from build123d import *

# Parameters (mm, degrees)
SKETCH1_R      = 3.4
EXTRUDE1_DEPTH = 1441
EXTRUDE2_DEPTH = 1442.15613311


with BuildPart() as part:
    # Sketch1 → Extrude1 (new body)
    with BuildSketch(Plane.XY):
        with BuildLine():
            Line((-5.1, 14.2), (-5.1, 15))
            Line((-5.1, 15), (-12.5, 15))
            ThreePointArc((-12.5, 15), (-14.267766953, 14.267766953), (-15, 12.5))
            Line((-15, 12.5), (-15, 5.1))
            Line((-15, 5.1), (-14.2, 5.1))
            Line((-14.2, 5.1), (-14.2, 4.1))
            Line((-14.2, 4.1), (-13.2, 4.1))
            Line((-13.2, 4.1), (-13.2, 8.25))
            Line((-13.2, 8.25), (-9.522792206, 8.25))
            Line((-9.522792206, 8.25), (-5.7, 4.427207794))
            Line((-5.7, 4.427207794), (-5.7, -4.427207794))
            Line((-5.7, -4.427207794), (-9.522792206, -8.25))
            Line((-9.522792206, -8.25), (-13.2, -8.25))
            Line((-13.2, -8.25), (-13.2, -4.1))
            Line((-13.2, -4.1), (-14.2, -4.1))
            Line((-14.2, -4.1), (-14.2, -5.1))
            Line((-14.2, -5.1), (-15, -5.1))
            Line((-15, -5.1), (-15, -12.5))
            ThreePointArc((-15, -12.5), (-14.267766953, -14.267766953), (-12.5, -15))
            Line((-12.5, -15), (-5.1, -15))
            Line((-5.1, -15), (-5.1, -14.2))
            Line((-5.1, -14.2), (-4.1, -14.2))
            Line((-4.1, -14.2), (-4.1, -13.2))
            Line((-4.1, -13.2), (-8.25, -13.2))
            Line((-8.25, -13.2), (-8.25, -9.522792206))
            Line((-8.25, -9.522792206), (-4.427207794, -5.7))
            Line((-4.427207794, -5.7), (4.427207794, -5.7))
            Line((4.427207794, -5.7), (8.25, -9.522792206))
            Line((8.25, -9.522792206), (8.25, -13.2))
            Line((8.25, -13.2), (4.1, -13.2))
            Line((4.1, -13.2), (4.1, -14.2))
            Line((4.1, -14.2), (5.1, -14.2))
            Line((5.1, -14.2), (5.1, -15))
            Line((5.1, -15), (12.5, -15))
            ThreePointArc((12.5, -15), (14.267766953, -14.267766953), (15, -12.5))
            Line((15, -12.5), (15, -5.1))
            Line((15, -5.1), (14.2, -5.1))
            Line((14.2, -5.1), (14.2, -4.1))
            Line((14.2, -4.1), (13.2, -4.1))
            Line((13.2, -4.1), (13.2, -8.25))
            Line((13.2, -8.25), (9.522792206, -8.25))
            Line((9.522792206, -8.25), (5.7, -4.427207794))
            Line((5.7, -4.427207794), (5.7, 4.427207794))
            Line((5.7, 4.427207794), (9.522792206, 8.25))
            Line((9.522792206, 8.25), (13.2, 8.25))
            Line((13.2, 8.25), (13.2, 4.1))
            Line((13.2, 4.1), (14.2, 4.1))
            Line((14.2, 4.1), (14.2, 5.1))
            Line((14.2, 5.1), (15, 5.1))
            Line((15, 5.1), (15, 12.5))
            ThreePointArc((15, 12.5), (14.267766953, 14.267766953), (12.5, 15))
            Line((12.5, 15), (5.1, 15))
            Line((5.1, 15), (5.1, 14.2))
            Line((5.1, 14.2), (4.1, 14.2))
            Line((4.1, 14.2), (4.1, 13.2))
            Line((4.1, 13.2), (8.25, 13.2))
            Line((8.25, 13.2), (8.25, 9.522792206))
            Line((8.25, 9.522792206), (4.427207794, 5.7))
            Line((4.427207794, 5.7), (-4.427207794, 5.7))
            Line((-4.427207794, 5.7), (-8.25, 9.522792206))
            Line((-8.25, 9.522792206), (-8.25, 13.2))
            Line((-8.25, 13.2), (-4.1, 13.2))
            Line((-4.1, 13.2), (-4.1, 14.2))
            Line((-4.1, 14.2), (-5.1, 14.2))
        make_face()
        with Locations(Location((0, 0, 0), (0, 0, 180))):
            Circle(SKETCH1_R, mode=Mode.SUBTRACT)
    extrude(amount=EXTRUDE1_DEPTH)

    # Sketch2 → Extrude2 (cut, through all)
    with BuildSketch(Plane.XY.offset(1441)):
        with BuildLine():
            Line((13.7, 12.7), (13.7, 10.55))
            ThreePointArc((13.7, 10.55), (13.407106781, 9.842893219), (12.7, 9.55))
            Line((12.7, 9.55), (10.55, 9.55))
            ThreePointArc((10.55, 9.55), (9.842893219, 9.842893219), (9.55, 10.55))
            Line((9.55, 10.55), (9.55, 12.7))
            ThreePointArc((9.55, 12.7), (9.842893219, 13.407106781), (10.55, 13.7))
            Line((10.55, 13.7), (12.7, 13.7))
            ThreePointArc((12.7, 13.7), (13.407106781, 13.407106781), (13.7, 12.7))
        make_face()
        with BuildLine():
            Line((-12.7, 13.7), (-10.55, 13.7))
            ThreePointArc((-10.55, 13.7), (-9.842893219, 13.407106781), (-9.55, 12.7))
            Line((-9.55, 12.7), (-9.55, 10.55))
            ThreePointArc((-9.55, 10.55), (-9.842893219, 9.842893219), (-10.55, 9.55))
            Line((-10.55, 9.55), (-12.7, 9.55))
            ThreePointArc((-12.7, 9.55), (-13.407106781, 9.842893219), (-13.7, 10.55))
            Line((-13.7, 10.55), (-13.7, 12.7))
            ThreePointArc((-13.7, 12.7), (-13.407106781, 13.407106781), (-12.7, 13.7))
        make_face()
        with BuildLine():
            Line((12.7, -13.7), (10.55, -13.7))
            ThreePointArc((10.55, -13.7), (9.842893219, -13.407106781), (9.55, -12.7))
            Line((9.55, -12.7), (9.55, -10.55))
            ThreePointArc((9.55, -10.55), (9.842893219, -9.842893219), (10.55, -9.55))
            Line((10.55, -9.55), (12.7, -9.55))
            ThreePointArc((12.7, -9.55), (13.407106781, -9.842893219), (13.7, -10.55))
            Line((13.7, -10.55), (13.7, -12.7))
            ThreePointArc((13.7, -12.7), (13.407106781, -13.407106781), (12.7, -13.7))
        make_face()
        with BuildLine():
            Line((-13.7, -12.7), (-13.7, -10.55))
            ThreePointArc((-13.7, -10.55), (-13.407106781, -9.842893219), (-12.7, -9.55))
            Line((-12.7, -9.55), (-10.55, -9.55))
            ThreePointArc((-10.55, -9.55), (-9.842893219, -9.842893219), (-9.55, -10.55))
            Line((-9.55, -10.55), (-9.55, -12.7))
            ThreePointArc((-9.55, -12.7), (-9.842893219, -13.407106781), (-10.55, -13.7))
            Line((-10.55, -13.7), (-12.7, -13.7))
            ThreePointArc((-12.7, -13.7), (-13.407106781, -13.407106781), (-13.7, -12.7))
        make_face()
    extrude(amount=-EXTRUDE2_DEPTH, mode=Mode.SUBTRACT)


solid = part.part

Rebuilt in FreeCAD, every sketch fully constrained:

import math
import FreeCAD as App
import Part
import Sketcher
from FreeCAD import Vector

doc = App.newDocument("Part")
body = doc.addObject("PartDesign::Body", "Body")

# Sketch on XY plane
sketch1 = body.newObject("Sketcher::SketchObject", "Sketch")
sketch1.AttachmentSupport = (doc.getObject("XY_Plane"), [""])
sketch1.MapMode = "FlatFace"
sketch1.addGeometry(Part.LineSegment(Vector(-5.1, 14.2, 0), Vector(-5.1, 15, 0)), False)
sketch1.addGeometry(Part.LineSegment(Vector(-5.1, 15, 0), Vector(-12.5, 15, 0)), False)
sketch1.addGeometry(Part.ArcOfCircle(Part.Circle(Vector(-12.5, 12.5, 0), Vector(0, 0, 1), 2.5), math.radians(90), math.radians(180)), False)
sketch1.addGeometry(Part.LineSegment(Vector(-15, 12.5, 0), Vector(-15, 5.1, 0)), False)
sketch1.addGeometry(Part.LineSegment(Vector(-15, 5.1, 0), Vector(-14.2, 5.1, 0)), False)
sketch1.addGeometry(Part.LineSegment(Vector(-14.2, 5.1, 0), Vector(-14.2, 4.1, 0)), False)
sketch1.addGeometry(Part.LineSegment(Vector(-14.2, 4.1, 0), Vector(-13.2, 4.1, 0)), False)
sketch1.addGeometry(Part.LineSegment(Vector(-13.2, 4.1, 0), Vector(-13.2, 8.2, 0)), False)
sketch1.addGeometry(Part.LineSegment(Vector(-13.2, 8.2, 0), Vector(-9.5, 8.2, 0)), False)
sketch1.addGeometry(Part.LineSegment(Vector(-9.5, 8.2, 0), Vector(-5.7, 4.4, 0)), False)
sketch1.addGeometry(Part.LineSegment(Vector(-5.7, 4.4, 0), Vector(-5.7, -4.4, 0)), False)
sketch1.addGeometry(Part.LineSegment(Vector(-5.7, -4.4, 0), Vector(-9.5, -8.2, 0)), False)
sketch1.addGeometry(Part.LineSegment(Vector(-9.5, -8.2, 0), Vector(-13.2, -8.2, 0)), False)
sketch1.addGeometry(Part.LineSegment(Vector(-13.2, -8.2, 0), Vector(-13.2, -4.1, 0)), False)
sketch1.addGeometry(Part.LineSegment(Vector(-13.2, -4.1, 0), Vector(-14.2, -4.1, 0)), False)
sketch1.addGeometry(Part.LineSegment(Vector(-14.2, -4.1, 0), Vector(-14.2, -5.1, 0)), False)
sketch1.addGeometry(Part.LineSegment(Vector(-14.2, -5.1, 0), Vector(-15, -5.1, 0)), False)
sketch1.addGeometry(Part.LineSegment(Vector(-15, -5.1, 0), Vector(-15, -12.5, 0)), False)
sketch1.addGeometry(Part.ArcOfCircle(Part.Circle(Vector(-12.5, -12.5, 0), Vector(0, 0, 1), 2.5), math.radians(180), math.radians(270)), False)
sketch1.addGeometry(Part.LineSegment(Vector(-12.5, -15, 0), Vector(-5.1, -15, 0)), False)
sketch1.addGeometry(Part.LineSegment(Vector(-5.1, -15, 0), Vector(-5.1, -14.2, 0)), False)
sketch1.addGeometry(Part.LineSegment(Vector(-5.1, -14.2, 0), Vector(-4.1, -14.2, 0)), False)
sketch1.addGeometry(Part.LineSegment(Vector(-4.1, -14.2, 0), Vector(-4.1, -13.2, 0)), False)
sketch1.addGeometry(Part.LineSegment(Vector(-4.1, -13.2, 0), Vector(-8.2, -13.2, 0)), False)
sketch1.addGeometry(Part.LineSegment(Vector(-8.2, -13.2, 0), Vector(-8.2, -9.5, 0)), False)
sketch1.addGeometry(Part.LineSegment(Vector(-8.2, -9.5, 0), Vector(-4.4, -5.7, 0)), False)
sketch1.addGeometry(Part.LineSegment(Vector(-4.4, -5.7, 0), Vector(4.4, -5.7, 0)), False)
sketch1.addGeometry(Part.LineSegment(Vector(4.4, -5.7, 0), Vector(8.2, -9.5, 0)), False)
sketch1.addGeometry(Part.LineSegment(Vector(8.2, -9.5, 0), Vector(8.2, -13.2, 0)), False)
sketch1.addGeometry(Part.LineSegment(Vector(8.2, -13.2, 0), Vector(4.1, -13.2, 0)), False)
sketch1.addGeometry(Part.LineSegment(Vector(4.1, -13.2, 0), Vector(4.1, -14.2, 0)), False)
sketch1.addGeometry(Part.LineSegment(Vector(4.1, -14.2, 0), Vector(5.1, -14.2, 0)), False)
sketch1.addGeometry(Part.LineSegment(Vector(5.1, -14.2, 0), Vector(5.1, -15, 0)), False)
sketch1.addGeometry(Part.LineSegment(Vector(5.1, -15, 0), Vector(12.5, -15, 0)), False)
sketch1.addGeometry(Part.ArcOfCircle(Part.Circle(Vector(12.5, -12.5, 0), Vector(0, 0, 1), 2.5), math.radians(-90), math.radians(0)), False)
sketch1.addGeometry(Part.LineSegment(Vector(15, -12.5, 0), Vector(15, -5.1, 0)), False)
sketch1.addGeometry(Part.LineSegment(Vector(15, -5.1, 0), Vector(14.2, -5.1, 0)), False)
sketch1.addGeometry(Part.LineSegment(Vector(14.2, -5.1, 0), Vector(14.2, -4.1, 0)), False)
sketch1.addGeometry(Part.LineSegment(Vector(14.2, -4.1, 0), Vector(13.2, -4.1, 0)), False)
sketch1.addGeometry(Part.LineSegment(Vector(13.2, -4.1, 0), Vector(13.2, -8.2, 0)), False)
sketch1.addGeometry(Part.LineSegment(Vector(13.2, -8.2, 0), Vector(9.5, -8.2, 0)), False)
sketch1.addGeometry(Part.LineSegment(Vector(9.5, -8.2, 0), Vector(5.7, -4.4, 0)), False)
sketch1.addGeometry(Part.LineSegment(Vector(5.7, -4.4, 0), Vector(5.7, 4.4, 0)), False)
sketch1.addGeometry(Part.LineSegment(Vector(5.7, 4.4, 0), Vector(9.5, 8.2, 0)), False)
sketch1.addGeometry(Part.LineSegment(Vector(9.5, 8.2, 0), Vector(13.2, 8.2, 0)), False)
sketch1.addGeometry(Part.LineSegment(Vector(13.2, 8.2, 0), Vector(13.2, 4.1, 0)), False)
sketch1.addGeometry(Part.LineSegment(Vector(13.2, 4.1, 0), Vector(14.2, 4.1, 0)), False)
sketch1.addGeometry(Part.LineSegment(Vector(14.2, 4.1, 0), Vector(14.2, 5.1, 0)), False)
sketch1.addGeometry(Part.LineSegment(Vector(14.2, 5.1, 0), Vector(15, 5.1, 0)), False)
sketch1.addGeometry(Part.LineSegment(Vector(15, 5.1, 0), Vector(15, 12.5, 0)), False)
sketch1.addGeometry(Part.ArcOfCircle(Part.Circle(Vector(12.5, 12.5, 0), Vector(0, 0, 1), 2.5), math.radians(0), math.radians(90)), False)
sketch1.addGeometry(Part.LineSegment(Vector(12.5, 15, 0), Vector(5.1, 15, 0)), False)
sketch1.addGeometry(Part.LineSegment(Vector(5.1, 15, 0), Vector(5.1, 14.2, 0)), False)
sketch1.addGeometry(Part.LineSegment(Vector(5.1, 14.2, 0), Vector(4.1, 14.2, 0)), False)
sketch1.addGeometry(Part.LineSegment(Vector(4.1, 14.2, 0), Vector(4.1, 13.2, 0)), False)
sketch1.addGeometry(Part.LineSegment(Vector(4.1, 13.2, 0), Vector(8.2, 13.2, 0)), False)
sketch1.addGeometry(Part.LineSegment(Vector(8.2, 13.2, 0), Vector(8.2, 9.5, 0)), False)
sketch1.addGeometry(Part.LineSegment(Vector(8.2, 9.5, 0), Vector(4.4, 5.7, 0)), False)
sketch1.addGeometry(Part.LineSegment(Vector(4.4, 5.7, 0), Vector(-4.4, 5.7, 0)), False)
sketch1.addGeometry(Part.LineSegment(Vector(-4.4, 5.7, 0), Vector(-8.2, 9.5, 0)), False)
sketch1.addGeometry(Part.LineSegment(Vector(-8.2, 9.5, 0), Vector(-8.2, 13.2, 0)), False)
sketch1.addGeometry(Part.LineSegment(Vector(-8.2, 13.2, 0), Vector(-4.1, 13.2, 0)), False)
sketch1.addGeometry(Part.LineSegment(Vector(-4.1, 13.2, 0), Vector(-4.1, 14.2, 0)), False)
sketch1.addGeometry(Part.LineSegment(Vector(-4.1, 14.2, 0), Vector(-5.1, 14.2, 0)), False)
sketch1.addGeometry(Part.Circle(Vector(0, 0, 0), Vector(0, 0, 1), 3.4), False)
sketch1.addConstraint(Sketcher.Constraint("Coincident", 0, 2, 1, 1))
sketch1.addConstraint(Sketcher.Constraint("Tangent", 1, 2, 2, 1))
sketch1.addConstraint(Sketcher.Constraint("Tangent", 2, 2, 3, 1))
sketch1.addConstraint(Sketcher.Constraint("Coincident", 3, 2, 4, 1))
sketch1.addConstraint(Sketcher.Constraint("Coincident", 4, 2, 5, 1))
sketch1.addConstraint(Sketcher.Constraint("Coincident", 5, 2, 6, 1))
sketch1.addConstraint(Sketcher.Constraint("Coincident", 6, 2, 7, 1))
sketch1.addConstraint(Sketcher.Constraint("Coincident", 7, 2, 8, 1))
sketch1.addConstraint(Sketcher.Constraint("Coincident", 8, 2, 9, 1))
sketch1.addConstraint(Sketcher.Constraint("Coincident", 9, 2, 10, 1))
sketch1.addConstraint(Sketcher.Constraint("Coincident", 10, 2, 11, 1))
sketch1.addConstraint(Sketcher.Constraint("Coincident", 11, 2, 12, 1))
sketch1.addConstraint(Sketcher.Constraint("Coincident", 12, 2, 13, 1))
sketch1.addConstraint(Sketcher.Constraint("Coincident", 13, 2, 14, 1))
sketch1.addConstraint(Sketcher.Constraint("Coincident", 14, 2, 15, 1))
sketch1.addConstraint(Sketcher.Constraint("Coincident", 15, 2, 16, 1))
sketch1.addConstraint(Sketcher.Constraint("Coincident", 16, 2, 17, 1))
sketch1.addConstraint(Sketcher.Constraint("Tangent", 17, 2, 18, 1))
sketch1.addConstraint(Sketcher.Constraint("Tangent", 18, 2, 19, 1))
sketch1.addConstraint(Sketcher.Constraint("Coincident", 19, 2, 20, 1))
sketch1.addConstraint(Sketcher.Constraint("Coincident", 20, 2, 21, 1))
sketch1.addConstraint(Sketcher.Constraint("Coincident", 21, 2, 22, 1))
sketch1.addConstraint(Sketcher.Constraint("Coincident", 22, 2, 23, 1))
sketch1.addConstraint(Sketcher.Constraint("Coincident", 23, 2, 24, 1))
sketch1.addConstraint(Sketcher.Constraint("Coincident", 24, 2, 25, 1))
sketch1.addConstraint(Sketcher.Constraint("Coincident", 25, 2, 26, 1))
sketch1.addConstraint(Sketcher.Constraint("Coincident", 26, 2, 27, 1))
sketch1.addConstraint(Sketcher.Constraint("Coincident", 27, 2, 28, 1))
sketch1.addConstraint(Sketcher.Constraint("Coincident", 28, 2, 29, 1))
sketch1.addConstraint(Sketcher.Constraint("Coincident", 29, 2, 30, 1))
sketch1.addConstraint(Sketcher.Constraint("Coincident", 30, 2, 31, 1))
sketch1.addConstraint(Sketcher.Constraint("Coincident", 31, 2, 32, 1))
sketch1.addConstraint(Sketcher.Constraint("Coincident", 32, 2, 33, 1))
sketch1.addConstraint(Sketcher.Constraint("Tangent", 33, 2, 34, 1))
sketch1.addConstraint(Sketcher.Constraint("Tangent", 34, 2, 35, 1))
sketch1.addConstraint(Sketcher.Constraint("Coincident", 35, 2, 36, 1))
sketch1.addConstraint(Sketcher.Constraint("Coincident", 36, 2, 37, 1))
sketch1.addConstraint(Sketcher.Constraint("Coincident", 37, 2, 38, 1))
sketch1.addConstraint(Sketcher.Constraint("Coincident", 38, 2, 39, 1))
sketch1.addConstraint(Sketcher.Constraint("Coincident", 39, 2, 40, 1))
sketch1.addConstraint(Sketcher.Constraint("Coincident", 40, 2, 41, 1))
sketch1.addConstraint(Sketcher.Constraint("Coincident", 41, 2, 42, 1))
sketch1.addConstraint(Sketcher.Constraint("Coincident", 42, 2, 43, 1))
sketch1.addConstraint(Sketcher.Constraint("Coincident", 43, 2, 44, 1))
sketch1.addConstraint(Sketcher.Constraint("Coincident", 44, 2, 45, 1))
sketch1.addConstraint(Sketcher.Constraint("Coincident", 45, 2, 46, 1))
sketch1.addConstraint(Sketcher.Constraint("Coincident", 46, 2, 47, 1))
sketch1.addConstraint(Sketcher.Constraint("Coincident", 47, 2, 48, 1))
sketch1.addConstraint(Sketcher.Constraint("Coincident", 48, 2, 49, 1))
sketch1.addConstraint(Sketcher.Constraint("Tangent", 49, 2, 50, 1))
sketch1.addConstraint(Sketcher.Constraint("Tangent", 50, 2, 51, 1))
sketch1.addConstraint(Sketcher.Constraint("Coincident", 51, 2, 52, 1))
sketch1.addConstraint(Sketcher.Constraint("Coincident", 52, 2, 53, 1))
sketch1.addConstraint(Sketcher.Constraint("Coincident", 53, 2, 54, 1))
sketch1.addConstraint(Sketcher.Constraint("Coincident", 54, 2, 55, 1))
sketch1.addConstraint(Sketcher.Constraint("Coincident", 55, 2, 56, 1))
sketch1.addConstraint(Sketcher.Constraint("Coincident", 56, 2, 57, 1))
sketch1.addConstraint(Sketcher.Constraint("Coincident", 57, 2, 58, 1))
sketch1.addConstraint(Sketcher.Constraint("Coincident", 58, 2, 59, 1))
sketch1.addConstraint(Sketcher.Constraint("Coincident", 59, 2, 60, 1))
sketch1.addConstraint(Sketcher.Constraint("Coincident", 60, 2, 61, 1))
sketch1.addConstraint(Sketcher.Constraint("Coincident", 61, 2, 62, 1))
sketch1.addConstraint(Sketcher.Constraint("Coincident", 62, 2, 63, 1))
sketch1.addConstraint(Sketcher.Constraint("Coincident", 63, 2, 0, 1))
sketch1.addConstraint(Sketcher.Constraint("Vertical", 0))
sketch1.addConstraint(Sketcher.Constraint("Horizontal", 1))
sketch1.addConstraint(Sketcher.Constraint("Vertical", 3))
sketch1.addConstraint(Sketcher.Constraint("Horizontal", 4))
sketch1.addConstraint(Sketcher.Constraint("Vertical", 5))
sketch1.addConstraint(Sketcher.Constraint("Horizontal", 6))
sketch1.addConstraint(Sketcher.Constraint("Vertical", 7))
sketch1.addConstraint(Sketcher.Constraint("Horizontal", 8))
sketch1.addConstraint(Sketcher.Constraint("Vertical", 10))
sketch1.addConstraint(Sketcher.Constraint("Horizontal", 12))
sketch1.addConstraint(Sketcher.Constraint("Vertical", 13))
sketch1.addConstraint(Sketcher.Constraint("Horizontal", 14))
sketch1.addConstraint(Sketcher.Constraint("Vertical", 15))
sketch1.addConstraint(Sketcher.Constraint("Horizontal", 16))
sketch1.addConstraint(Sketcher.Constraint("Vertical", 17))
sketch1.addConstraint(Sketcher.Constraint("Horizontal", 19))
sketch1.addConstraint(Sketcher.Constraint("Vertical", 20))
sketch1.addConstraint(Sketcher.Constraint("Horizontal", 21))
sketch1.addConstraint(Sketcher.Constraint("Vertical", 22))
sketch1.addConstraint(Sketcher.Constraint("Horizontal", 23))
sketch1.addConstraint(Sketcher.Constraint("Vertical", 24))
sketch1.addConstraint(Sketcher.Constraint("Horizontal", 26))
sketch1.addConstraint(Sketcher.Constraint("Vertical", 28))
sketch1.addConstraint(Sketcher.Constraint("Horizontal", 29))
sketch1.addConstraint(Sketcher.Constraint("Vertical", 30))
sketch1.addConstraint(Sketcher.Constraint("Horizontal", 31))
sketch1.addConstraint(Sketcher.Constraint("Vertical", 32))
sketch1.addConstraint(Sketcher.Constraint("Horizontal", 33))
sketch1.addConstraint(Sketcher.Constraint("Vertical", 35))
sketch1.addConstraint(Sketcher.Constraint("Horizontal", 36))
sketch1.addConstraint(Sketcher.Constraint("Vertical", 37))
sketch1.addConstraint(Sketcher.Constraint("Horizontal", 38))
sketch1.addConstraint(Sketcher.Constraint("Vertical", 39))
sketch1.addConstraint(Sketcher.Constraint("Horizontal", 40))
sketch1.addConstraint(Sketcher.Constraint("Vertical", 42))
sketch1.addConstraint(Sketcher.Constraint("Horizontal", 44))
sketch1.addConstraint(Sketcher.Constraint("Vertical", 45))
sketch1.addConstraint(Sketcher.Constraint("Horizontal", 46))
sketch1.addConstraint(Sketcher.Constraint("Vertical", 47))
sketch1.addConstraint(Sketcher.Constraint("Horizontal", 48))
sketch1.addConstraint(Sketcher.Constraint("Vertical", 49))
sketch1.addConstraint(Sketcher.Constraint("Horizontal", 51))
sketch1.addConstraint(Sketcher.Constraint("Vertical", 52))
sketch1.addConstraint(Sketcher.Constraint("Horizontal", 53))
sketch1.addConstraint(Sketcher.Constraint("Vertical", 54))
sketch1.addConstraint(Sketcher.Constraint("Horizontal", 55))
sketch1.addConstraint(Sketcher.Constraint("Vertical", 56))
sketch1.addConstraint(Sketcher.Constraint("Horizontal", 58))
sketch1.addConstraint(Sketcher.Constraint("Vertical", 60))
sketch1.addConstraint(Sketcher.Constraint("Horizontal", 61))
sketch1.addConstraint(Sketcher.Constraint("Vertical", 62))
sketch1.addConstraint(Sketcher.Constraint("Horizontal", 63))
sketch1.addConstraint(Sketcher.Constraint("Coincident", 64, 3, -1, 1))
sketch1.addConstraint(Sketcher.Constraint("Equal", 2, 18))
sketch1.addConstraint(Sketcher.Constraint("Equal", 18, 34))
sketch1.addConstraint(Sketcher.Constraint("Equal", 34, 50))
sketch1.addConstraint(Sketcher.Constraint("Symmetric", 2, 3, 34, 3, -1, 1))
sketch1.addConstraint(Sketcher.Constraint("Symmetric", 18, 3, 50, 3, -1, 1))
sketch1.addConstraint(Sketcher.Constraint("Symmetric", 4, 2, 36, 2, -1, 1))
sketch1.addConstraint(Sketcher.Constraint("Symmetric", 6, 2, 38, 2, -1, 1))
sketch1.addConstraint(Sketcher.Constraint("Symmetric", 8, 2, 40, 2, -1, 1))
sketch1.addConstraint(Sketcher.Constraint("Symmetric", 9, 2, 41, 2, -1, 1))
sketch1.addConstraint(Sketcher.Constraint("Symmetric", 11, 2, 43, 2, -1, 1))
sketch1.addConstraint(Sketcher.Constraint("Symmetric", 13, 2, 45, 2, -1, 1))
sketch1.addConstraint(Sketcher.Constraint("Symmetric", 15, 2, 47, 2, -1, 1))
sketch1.addConstraint(Sketcher.Constraint("Symmetric", 20, 2, 52, 2, -1, 1))
sketch1.addConstraint(Sketcher.Constraint("Symmetric", 22, 2, 54, 2, -1, 1))
sketch1.addConstraint(Sketcher.Constraint("Symmetric", 24, 2, 56, 2, -1, 1))
sketch1.addConstraint(Sketcher.Constraint("Symmetric", 25, 2, 57, 2, -1, 1))
sketch1.addConstraint(Sketcher.Constraint("Symmetric", 27, 2, 59, 2, -1, 1))
sketch1.addConstraint(Sketcher.Constraint("Symmetric", 29, 2, 61, 2, -1, 1))
sketch1.addConstraint(Sketcher.Constraint("Symmetric", 31, 2, 63, 2, -1, 1))
sketch1.addConstraint(Sketcher.Constraint("Symmetric", 18, 3, 34, 3, -2))
sketch1.addConstraint(Sketcher.Constraint("Symmetric", 24, 2, 27, 2, -2))
sketch1.addConstraint(Sketcher.Constraint("Symmetric", 22, 2, 29, 2, -2))
sketch1.addConstraint(Sketcher.Constraint("Symmetric", 20, 2, 31, 2, -2))
sketch1.addConstraint(Sketcher.Constraint("Symmetric", 15, 2, 36, 2, -2))
sketch1.addConstraint(Sketcher.Constraint("Symmetric", 13, 2, 38, 2, -2))
sketch1.addConstraint(Sketcher.Constraint("Symmetric", 11, 2, 40, 2, -2))
sketch1.addConstraint(Sketcher.Constraint("Perpendicular", 9, 11))
sketch1.addConstraint(Sketcher.Constraint("Parallel", 11, 25))
sketch1.addConstraint(Sketcher.Constraint("Perpendicular", 25, 27))
sketch1.addConstraint(Sketcher.Constraint("Perpendicular", 41, 43))
sketch1.addConstraint(Sketcher.Constraint("Perpendicular", 57, 59))
sketch1.addConstraint(Sketcher.Constraint("Horizontal", 10, 2, 41, 2))
sketch1.addConstraint(Sketcher.Constraint("Equal", 14, 21))
sketch1.addConstraint(Sketcher.Constraint("Equal", 48, 0))
sketch1.addConstraint(Sketcher.Constraint("Equal", 51, 3))
sketch1.addConstraint(Sketcher.Constraint("Equal", 63, 5))
sketch1.addConstraint(Sketcher.Constraint("Equal", 61, 7))
sketch1.addConstraint(Sketcher.Constraint("Equal", 58, 10))
sketch1.addConstraint(Sketcher.Constraint("Equal", 15, 22))
sketch1.addConstraint(Sketcher.Constraint("Equal", 44, 24))
sketch1.addConstraint(Sketcher.Constraint("Equal", 11, 25))
sketch1.addConstraint(Sketcher.Constraint("Diameter", 64, 6.8))
sketch1.addConstraint(Sketcher.Constraint("Radius", 2, 2.5))
sketch1.addConstraint(Sketcher.Constraint("DistanceX", 6, 1, 6, 2, 1.0))
sketch1.addConstraint(Sketcher.Constraint("DistanceX", 1, 2, 1, 1, 7.4))
sketch1.addConstraint(Sketcher.Constraint("DistanceX", 4, 1, 4, 2, 0.8))
sketch1.addConstraint(Sketcher.Constraint("DistanceY", -1, 1, 0, 2, 15.0))
sketch1.addConstraint(Sketcher.Constraint("DistanceX", 23, 2, 23, 1, 4.15))
sketch1.addConstraint(Sketcher.Constraint("DistanceX", 9, 2, -1, 1, 5.7))
sketch1.addConstraint(Sketcher.Constraint("DistanceX", 8, 1, 8, 2, 3.677208))
pad1 = body.newObject("PartDesign::Pad", "Pad")
pad1.Profile = sketch1
pad1.Length = 1441

# Sketch on XY plane
sketch2 = body.newObject("Sketcher::SketchObject", "Sketch001")
sketch2.AttachmentSupport = (doc.getObject("XY_Plane"), [""])
sketch2.MapMode = "FlatFace"
sketch2.AttachmentOffset = App.Placement(Vector(0, 0, 1441), App.Rotation())
sketch2.addGeometry(Part.LineSegment(Vector(13.7, 10.6, 0), Vector(13.7, 12.7, 0)), False)
sketch2.addGeometry(Part.ArcOfCircle(Part.Circle(Vector(12.7, 12.7, 0), Vector(0, 0, 1), 1), math.radians(0), math.radians(90)), False)
sketch2.addGeometry(Part.LineSegment(Vector(12.7, 13.7, 0), Vector(10.6, 13.7, 0)), False)
sketch2.addGeometry(Part.ArcOfCircle(Part.Circle(Vector(10.6, 12.7, 0), Vector(0, 0, 1), 1), math.radians(90), math.radians(180)), False)
sketch2.addGeometry(Part.LineSegment(Vector(9.6, 12.7, 0), Vector(9.6, 10.6, 0)), False)
sketch2.addGeometry(Part.ArcOfCircle(Part.Circle(Vector(10.6, 10.6, 0), Vector(0, 0, 1), 1), math.radians(-180), math.radians(-90)), False)
sketch2.addGeometry(Part.LineSegment(Vector(10.6, 9.6, 0), Vector(12.7, 9.6, 0)), False)
sketch2.addGeometry(Part.ArcOfCircle(Part.Circle(Vector(12.7, 10.6, 0), Vector(0, 0, 1), 1), math.radians(-90), math.radians(0)), False)
sketch2.addGeometry(Part.LineSegment(Vector(-10.6, 13.7, 0), Vector(-12.7, 13.7, 0)), False)
sketch2.addGeometry(Part.ArcOfCircle(Part.Circle(Vector(-12.7, 12.7, 0), Vector(0, 0, 1), 1), math.radians(90), math.radians(180)), False)
sketch2.addGeometry(Part.LineSegment(Vector(-13.7, 12.7, 0), Vector(-13.7, 10.6, 0)), False)
sketch2.addGeometry(Part.ArcOfCircle(Part.Circle(Vector(-12.7, 10.6, 0), Vector(0, 0, 1), 1), math.radians(-180), math.radians(-90)), False)
sketch2.addGeometry(Part.LineSegment(Vector(-12.7, 9.6, 0), Vector(-10.6, 9.6, 0)), False)
sketch2.addGeometry(Part.ArcOfCircle(Part.Circle(Vector(-10.6, 10.6, 0), Vector(0, 0, 1), 1), math.radians(-90), math.radians(0)), False)
sketch2.addGeometry(Part.LineSegment(Vector(-9.6, 10.6, 0), Vector(-9.6, 12.7, 0)), False)
sketch2.addGeometry(Part.ArcOfCircle(Part.Circle(Vector(-10.6, 12.7, 0), Vector(0, 0, 1), 1), math.radians(0), math.radians(90)), False)
sketch2.addGeometry(Part.LineSegment(Vector(10.6, -13.7, 0), Vector(12.7, -13.7, 0)), False)
sketch2.addGeometry(Part.ArcOfCircle(Part.Circle(Vector(12.7, -12.7, 0), Vector(0, 0, 1), 1), math.radians(-90), math.radians(0)), False)
sketch2.addGeometry(Part.LineSegment(Vector(13.7, -12.7, 0), Vector(13.7, -10.6, 0)), False)
sketch2.addGeometry(Part.ArcOfCircle(Part.Circle(Vector(12.7, -10.6, 0), Vector(0, 0, 1), 1), math.radians(0), math.radians(90)), False)
sketch2.addGeometry(Part.LineSegment(Vector(12.7, -9.6, 0), Vector(10.6, -9.6, 0)), False)
sketch2.addGeometry(Part.ArcOfCircle(Part.Circle(Vector(10.6, -10.6, 0), Vector(0, 0, 1), 1), math.radians(90), math.radians(180)), False)
sketch2.addGeometry(Part.LineSegment(Vector(9.6, -10.6, 0), Vector(9.6, -12.7, 0)), False)
sketch2.addGeometry(Part.ArcOfCircle(Part.Circle(Vector(10.6, -12.7, 0), Vector(0, 0, 1), 1), math.radians(-180), math.radians(-90)), False)
sketch2.addGeometry(Part.LineSegment(Vector(-13.7, -10.6, 0), Vector(-13.7, -12.7, 0)), False)
sketch2.addGeometry(Part.ArcOfCircle(Part.Circle(Vector(-12.7, -12.7, 0), Vector(0, 0, 1), 1), math.radians(-180), math.radians(-90)), False)
sketch2.addGeometry(Part.LineSegment(Vector(-12.7, -13.7, 0), Vector(-10.6, -13.7, 0)), False)
sketch2.addGeometry(Part.ArcOfCircle(Part.Circle(Vector(-10.6, -12.7, 0), Vector(0, 0, 1), 1), math.radians(-90), math.radians(0)), False)
sketch2.addGeometry(Part.LineSegment(Vector(-9.6, -12.7, 0), Vector(-9.6, -10.6, 0)), False)
sketch2.addGeometry(Part.ArcOfCircle(Part.Circle(Vector(-10.6, -10.6, 0), Vector(0, 0, 1), 1), math.radians(0), math.radians(90)), False)
sketch2.addGeometry(Part.LineSegment(Vector(-10.6, -9.6, 0), Vector(-12.7, -9.6, 0)), False)
sketch2.addGeometry(Part.ArcOfCircle(Part.Circle(Vector(-12.7, -10.6, 0), Vector(0, 0, 1), 1), math.radians(90), math.radians(180)), False)
sketch2.addConstraint(Sketcher.Constraint("Tangent", 0, 2, 1, 1))
sketch2.addConstraint(Sketcher.Constraint("Tangent", 1, 2, 2, 1))
sketch2.addConstraint(Sketcher.Constraint("Tangent", 2, 2, 3, 1))
sketch2.addConstraint(Sketcher.Constraint("Tangent", 3, 2, 4, 1))
sketch2.addConstraint(Sketcher.Constraint("Tangent", 4, 2, 5, 1))
sketch2.addConstraint(Sketcher.Constraint("Tangent", 5, 2, 6, 1))
sketch2.addConstraint(Sketcher.Constraint("Tangent", 6, 2, 7, 1))
sketch2.addConstraint(Sketcher.Constraint("Tangent", 7, 2, 0, 1))
sketch2.addConstraint(Sketcher.Constraint("Tangent", 8, 2, 9, 1))
sketch2.addConstraint(Sketcher.Constraint("Tangent", 9, 2, 10, 1))
sketch2.addConstraint(Sketcher.Constraint("Tangent", 10, 2, 11, 1))
sketch2.addConstraint(Sketcher.Constraint("Tangent", 11, 2, 12, 1))
sketch2.addConstraint(Sketcher.Constraint("Tangent", 12, 2, 13, 1))
sketch2.addConstraint(Sketcher.Constraint("Tangent", 13, 2, 14, 1))
sketch2.addConstraint(Sketcher.Constraint("Tangent", 14, 2, 15, 1))
sketch2.addConstraint(Sketcher.Constraint("Tangent", 15, 2, 8, 1))
sketch2.addConstraint(Sketcher.Constraint("Tangent", 16, 2, 17, 1))
sketch2.addConstraint(Sketcher.Constraint("Tangent", 17, 2, 18, 1))
sketch2.addConstraint(Sketcher.Constraint("Tangent", 18, 2, 19, 1))
sketch2.addConstraint(Sketcher.Constraint("Tangent", 19, 2, 20, 1))
sketch2.addConstraint(Sketcher.Constraint("Tangent", 20, 2, 21, 1))
sketch2.addConstraint(Sketcher.Constraint("Tangent", 21, 2, 22, 1))
sketch2.addConstraint(Sketcher.Constraint("Tangent", 22, 2, 23, 1))
sketch2.addConstraint(Sketcher.Constraint("Tangent", 23, 2, 16, 1))
sketch2.addConstraint(Sketcher.Constraint("Tangent", 24, 2, 25, 1))
sketch2.addConstraint(Sketcher.Constraint("Tangent", 25, 2, 26, 1))
sketch2.addConstraint(Sketcher.Constraint("Tangent", 26, 2, 27, 1))
sketch2.addConstraint(Sketcher.Constraint("Tangent", 27, 2, 28, 1))
sketch2.addConstraint(Sketcher.Constraint("Tangent", 28, 2, 29, 1))
sketch2.addConstraint(Sketcher.Constraint("Tangent", 29, 2, 30, 1))
sketch2.addConstraint(Sketcher.Constraint("Tangent", 30, 2, 31, 1))
sketch2.addConstraint(Sketcher.Constraint("Tangent", 31, 2, 24, 1))
sketch2.addConstraint(Sketcher.Constraint("Vertical", 0))
sketch2.addConstraint(Sketcher.Constraint("Horizontal", 2))
sketch2.addConstraint(Sketcher.Constraint("Vertical", 4))
sketch2.addConstraint(Sketcher.Constraint("Horizontal", 6))
sketch2.addConstraint(Sketcher.Constraint("Horizontal", 8))
sketch2.addConstraint(Sketcher.Constraint("Vertical", 10))
sketch2.addConstraint(Sketcher.Constraint("Horizontal", 12))
sketch2.addConstraint(Sketcher.Constraint("Vertical", 14))
sketch2.addConstraint(Sketcher.Constraint("Horizontal", 16))
sketch2.addConstraint(Sketcher.Constraint("Vertical", 18))
sketch2.addConstraint(Sketcher.Constraint("Horizontal", 20))
sketch2.addConstraint(Sketcher.Constraint("Vertical", 22))
sketch2.addConstraint(Sketcher.Constraint("Vertical", 24))
sketch2.addConstraint(Sketcher.Constraint("Horizontal", 26))
sketch2.addConstraint(Sketcher.Constraint("Vertical", 28))
sketch2.addConstraint(Sketcher.Constraint("Horizontal", 30))
sketch2.addConstraint(Sketcher.Constraint("Equal", 1, 3))
sketch2.addConstraint(Sketcher.Constraint("Equal", 3, 5))
sketch2.addConstraint(Sketcher.Constraint("Equal", 5, 7))
sketch2.addConstraint(Sketcher.Constraint("Equal", 7, 9))
sketch2.addConstraint(Sketcher.Constraint("Equal", 9, 11))
sketch2.addConstraint(Sketcher.Constraint("Equal", 11, 13))
sketch2.addConstraint(Sketcher.Constraint("Equal", 13, 15))
sketch2.addConstraint(Sketcher.Constraint("Equal", 15, 17))
sketch2.addConstraint(Sketcher.Constraint("Equal", 17, 19))
sketch2.addConstraint(Sketcher.Constraint("Equal", 19, 21))
sketch2.addConstraint(Sketcher.Constraint("Equal", 21, 23))
sketch2.addConstraint(Sketcher.Constraint("Equal", 23, 25))
sketch2.addConstraint(Sketcher.Constraint("Equal", 25, 27))
sketch2.addConstraint(Sketcher.Constraint("Equal", 27, 29))
sketch2.addConstraint(Sketcher.Constraint("Equal", 29, 31))
sketch2.addConstraint(Sketcher.Constraint("Symmetric", 9, 3, 17, 3, -1, 1))
sketch2.addConstraint(Sketcher.Constraint("Symmetric", 13, 3, 21, 3, -1, 1))
sketch2.addConstraint(Sketcher.Constraint("Symmetric", 1, 3, 25, 3, -1, 1))
sketch2.addConstraint(Sketcher.Constraint("Symmetric", 5, 3, 29, 3, -1, 1))
sketch2.addConstraint(Sketcher.Constraint("Symmetric", 1, 3, 9, 3, -2))
sketch2.addConstraint(Sketcher.Constraint("Symmetric", 5, 3, 13, 3, -2))
sketch2.addConstraint(Sketcher.Constraint("Equal", 30, 0))
sketch2.addConstraint(Sketcher.Constraint("Radius", 1, 1.0))
sketch2.addConstraint(Sketcher.Constraint("DistanceX", 2, 2, 2, 1, 2.15))
sketch2.addConstraint(Sketcher.Constraint("DistanceX", -1, 1, 1, 3, 12.7))
sketch2.addConstraint(Sketcher.Constraint("DistanceY", -1, 1, 1, 3, 12.7))
pocket1 = body.newObject("PartDesign::Pocket", "Pocket")
pocket1.Profile = sketch2
pocket1.Type = "ThroughAll"

doc.recompute()
